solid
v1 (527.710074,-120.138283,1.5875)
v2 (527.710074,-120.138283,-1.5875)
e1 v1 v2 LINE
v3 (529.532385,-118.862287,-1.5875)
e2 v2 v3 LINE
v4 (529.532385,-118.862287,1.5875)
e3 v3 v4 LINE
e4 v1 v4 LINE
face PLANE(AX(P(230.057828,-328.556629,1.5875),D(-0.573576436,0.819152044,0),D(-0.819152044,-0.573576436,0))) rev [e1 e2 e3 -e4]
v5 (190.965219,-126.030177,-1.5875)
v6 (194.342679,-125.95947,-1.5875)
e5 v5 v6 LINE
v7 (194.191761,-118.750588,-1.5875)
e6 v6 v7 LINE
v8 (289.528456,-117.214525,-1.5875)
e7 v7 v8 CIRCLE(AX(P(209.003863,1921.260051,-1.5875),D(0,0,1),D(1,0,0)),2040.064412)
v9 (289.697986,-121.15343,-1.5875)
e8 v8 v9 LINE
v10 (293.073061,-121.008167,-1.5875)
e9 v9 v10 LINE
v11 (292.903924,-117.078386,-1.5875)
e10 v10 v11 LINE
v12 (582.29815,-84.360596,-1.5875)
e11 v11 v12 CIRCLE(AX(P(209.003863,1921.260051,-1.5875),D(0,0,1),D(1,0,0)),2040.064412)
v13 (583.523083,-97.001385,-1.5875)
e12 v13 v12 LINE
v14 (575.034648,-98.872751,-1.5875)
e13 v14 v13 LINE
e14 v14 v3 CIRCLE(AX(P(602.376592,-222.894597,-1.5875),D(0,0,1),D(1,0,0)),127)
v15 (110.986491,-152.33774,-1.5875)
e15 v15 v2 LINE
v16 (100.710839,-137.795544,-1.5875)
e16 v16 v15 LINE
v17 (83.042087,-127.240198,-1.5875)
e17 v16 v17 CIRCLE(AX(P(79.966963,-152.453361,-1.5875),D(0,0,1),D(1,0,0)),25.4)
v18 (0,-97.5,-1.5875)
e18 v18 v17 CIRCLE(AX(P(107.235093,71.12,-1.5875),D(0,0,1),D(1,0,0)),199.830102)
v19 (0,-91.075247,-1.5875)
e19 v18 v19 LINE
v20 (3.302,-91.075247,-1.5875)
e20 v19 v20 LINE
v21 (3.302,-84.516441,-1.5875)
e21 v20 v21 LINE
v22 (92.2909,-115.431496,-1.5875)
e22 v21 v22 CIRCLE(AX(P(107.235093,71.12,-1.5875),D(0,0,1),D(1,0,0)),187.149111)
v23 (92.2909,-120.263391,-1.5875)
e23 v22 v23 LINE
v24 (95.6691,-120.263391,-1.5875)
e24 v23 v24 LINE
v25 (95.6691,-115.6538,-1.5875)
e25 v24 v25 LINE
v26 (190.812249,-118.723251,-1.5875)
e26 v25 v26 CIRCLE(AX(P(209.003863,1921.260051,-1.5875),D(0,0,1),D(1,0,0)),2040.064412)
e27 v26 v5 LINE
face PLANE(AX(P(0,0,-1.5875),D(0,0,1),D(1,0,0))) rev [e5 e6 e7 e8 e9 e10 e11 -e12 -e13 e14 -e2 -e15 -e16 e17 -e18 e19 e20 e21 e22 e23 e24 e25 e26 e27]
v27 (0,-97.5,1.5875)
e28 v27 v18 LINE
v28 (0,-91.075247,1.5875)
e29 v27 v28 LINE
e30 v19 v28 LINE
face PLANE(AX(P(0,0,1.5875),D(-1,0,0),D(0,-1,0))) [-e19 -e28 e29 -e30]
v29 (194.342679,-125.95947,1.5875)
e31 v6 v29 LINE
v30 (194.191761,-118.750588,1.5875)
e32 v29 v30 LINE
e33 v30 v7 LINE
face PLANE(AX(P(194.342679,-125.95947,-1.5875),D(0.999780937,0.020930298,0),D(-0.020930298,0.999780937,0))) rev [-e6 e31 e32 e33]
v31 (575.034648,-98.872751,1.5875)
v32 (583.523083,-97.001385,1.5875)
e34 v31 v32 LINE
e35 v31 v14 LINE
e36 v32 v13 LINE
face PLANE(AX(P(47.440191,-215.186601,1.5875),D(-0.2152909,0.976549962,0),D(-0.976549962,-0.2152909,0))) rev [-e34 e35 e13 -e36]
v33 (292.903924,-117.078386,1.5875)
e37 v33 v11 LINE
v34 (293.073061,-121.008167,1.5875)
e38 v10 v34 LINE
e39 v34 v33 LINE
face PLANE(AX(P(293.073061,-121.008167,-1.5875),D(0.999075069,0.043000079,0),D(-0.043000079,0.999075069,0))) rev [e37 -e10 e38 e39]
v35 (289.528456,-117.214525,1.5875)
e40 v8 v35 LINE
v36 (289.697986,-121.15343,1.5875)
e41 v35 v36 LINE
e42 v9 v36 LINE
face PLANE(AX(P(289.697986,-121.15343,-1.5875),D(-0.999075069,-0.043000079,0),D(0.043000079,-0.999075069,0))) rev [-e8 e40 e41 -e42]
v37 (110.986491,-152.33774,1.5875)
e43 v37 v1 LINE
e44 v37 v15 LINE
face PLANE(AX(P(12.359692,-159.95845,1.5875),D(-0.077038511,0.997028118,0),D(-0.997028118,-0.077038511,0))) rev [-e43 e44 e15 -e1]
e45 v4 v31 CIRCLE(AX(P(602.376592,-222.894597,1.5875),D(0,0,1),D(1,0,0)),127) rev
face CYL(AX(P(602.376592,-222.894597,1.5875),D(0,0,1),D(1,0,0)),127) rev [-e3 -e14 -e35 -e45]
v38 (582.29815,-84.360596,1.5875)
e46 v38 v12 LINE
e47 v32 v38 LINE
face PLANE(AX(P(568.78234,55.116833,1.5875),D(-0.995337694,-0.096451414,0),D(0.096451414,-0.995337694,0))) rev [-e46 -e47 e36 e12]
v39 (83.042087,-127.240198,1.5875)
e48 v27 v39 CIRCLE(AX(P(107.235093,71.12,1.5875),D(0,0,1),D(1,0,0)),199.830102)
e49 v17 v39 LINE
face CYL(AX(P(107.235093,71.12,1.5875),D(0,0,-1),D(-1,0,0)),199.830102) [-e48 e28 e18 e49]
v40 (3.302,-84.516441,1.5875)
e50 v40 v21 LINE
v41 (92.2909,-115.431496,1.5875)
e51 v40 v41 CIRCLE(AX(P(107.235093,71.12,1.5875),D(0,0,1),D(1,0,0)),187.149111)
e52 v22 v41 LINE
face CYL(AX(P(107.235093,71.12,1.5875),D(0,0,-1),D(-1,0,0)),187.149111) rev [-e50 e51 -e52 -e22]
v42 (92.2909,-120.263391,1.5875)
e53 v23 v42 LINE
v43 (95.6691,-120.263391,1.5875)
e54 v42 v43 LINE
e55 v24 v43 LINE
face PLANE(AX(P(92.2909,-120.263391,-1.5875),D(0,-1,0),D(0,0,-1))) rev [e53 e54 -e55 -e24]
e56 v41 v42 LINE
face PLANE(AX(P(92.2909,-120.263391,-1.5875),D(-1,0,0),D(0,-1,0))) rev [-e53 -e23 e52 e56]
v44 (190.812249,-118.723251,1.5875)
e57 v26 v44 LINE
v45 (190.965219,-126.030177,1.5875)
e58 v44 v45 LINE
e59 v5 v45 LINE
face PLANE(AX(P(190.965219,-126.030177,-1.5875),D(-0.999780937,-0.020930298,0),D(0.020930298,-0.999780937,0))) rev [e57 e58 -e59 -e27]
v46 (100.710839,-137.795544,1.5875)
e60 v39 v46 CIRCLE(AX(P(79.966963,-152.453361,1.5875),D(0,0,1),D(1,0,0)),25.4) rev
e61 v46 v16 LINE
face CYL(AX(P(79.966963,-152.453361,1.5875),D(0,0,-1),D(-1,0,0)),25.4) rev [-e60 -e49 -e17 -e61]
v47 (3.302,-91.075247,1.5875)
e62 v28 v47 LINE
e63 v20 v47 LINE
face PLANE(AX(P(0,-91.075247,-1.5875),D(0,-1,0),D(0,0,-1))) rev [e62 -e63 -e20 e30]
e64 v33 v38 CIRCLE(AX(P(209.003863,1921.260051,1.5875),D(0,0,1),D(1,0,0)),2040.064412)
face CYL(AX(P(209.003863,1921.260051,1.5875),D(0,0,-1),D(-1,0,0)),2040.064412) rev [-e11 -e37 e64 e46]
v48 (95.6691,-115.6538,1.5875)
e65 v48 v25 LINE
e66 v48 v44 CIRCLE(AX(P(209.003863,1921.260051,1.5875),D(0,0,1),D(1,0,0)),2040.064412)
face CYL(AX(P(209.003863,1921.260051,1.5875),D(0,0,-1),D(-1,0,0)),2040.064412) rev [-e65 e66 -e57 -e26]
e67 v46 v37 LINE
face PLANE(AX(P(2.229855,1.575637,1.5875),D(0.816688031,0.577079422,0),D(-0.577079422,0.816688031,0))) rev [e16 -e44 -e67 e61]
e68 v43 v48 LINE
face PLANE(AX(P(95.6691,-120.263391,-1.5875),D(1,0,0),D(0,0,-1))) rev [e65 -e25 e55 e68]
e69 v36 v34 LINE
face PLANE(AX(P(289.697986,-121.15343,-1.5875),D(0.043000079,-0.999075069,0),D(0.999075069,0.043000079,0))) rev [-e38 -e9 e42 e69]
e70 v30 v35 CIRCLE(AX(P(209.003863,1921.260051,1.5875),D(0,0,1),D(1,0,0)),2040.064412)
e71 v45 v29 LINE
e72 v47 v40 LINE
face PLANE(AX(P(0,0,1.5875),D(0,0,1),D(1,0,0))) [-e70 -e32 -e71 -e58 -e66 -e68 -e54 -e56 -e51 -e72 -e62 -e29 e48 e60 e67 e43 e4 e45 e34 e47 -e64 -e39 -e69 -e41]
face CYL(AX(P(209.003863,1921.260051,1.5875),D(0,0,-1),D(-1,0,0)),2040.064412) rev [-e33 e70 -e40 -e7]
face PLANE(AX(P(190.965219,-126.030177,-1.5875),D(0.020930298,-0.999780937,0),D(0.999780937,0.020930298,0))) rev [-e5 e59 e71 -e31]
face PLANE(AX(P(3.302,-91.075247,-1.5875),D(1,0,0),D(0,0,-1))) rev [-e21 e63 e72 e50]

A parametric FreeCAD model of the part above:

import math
import FreeCAD as App
import Part
import Sketcher
from FreeCAD import Vector
Q = App.Units.Quantity


def edges_at(feature, points):
    """Names of the edges that pass closest to the given points."""
    edges = feature.Shape.Edges
    near = lambda p: min(range(len(edges)), key=lambda i: edges[i].distToShape(Part.Vertex(*p))[0])
    return sorted({f"Edge{near(p) + 1}" for p in points})

doc = App.newDocument("Part")
body = doc.addObject("PartDesign::Body", "Body")

# Sketch on XY plane
sketch1 = body.newObject("Sketcher::SketchObject", "Sketch")
sketch1.AttachmentSupport = (doc.getObject("XY_Plane"), [""])
sketch1.MapMode = "FlatFace"
sketch1.addGeometry(Part.LineSegment(Vector(0, -82.26, 0), Vector(0, -97.5, 0)), False)
sketch1.addGeometry(Part.ArcOfCircle(Part.Circle(Vector(107.235093, 71.12, 0), Vector(0, 0, 1), 199.830102), math.radians(-122.454612), math.radians(-93.803326)), False)
sketch1.addGeometry(Part.LineSegment(Vector(93.98, -128.27, 0), Vector(110.986491, -152.33774, 0)), False)
sketch1.addGeometry(Part.LineSegment(Vector(110.986491, -152.33774, 0), Vector(527.710074, -120.138283, 0)), False)
sketch1.addGeometry(Part.LineSegment(Vector(527.710074, -120.138283, 0), Vector(550.289321, -104.328124, 0)), False)
sketch1.addGeometry(Part.LineSegment(Vector(550.289321, -104.328124, 0), Vector(583.523083, -97.001385, 0)), False)
sketch1.addGeometry(Part.LineSegment(Vector(583.523083, -97.001385, 0), Vector(582.29815, -84.360596, 0)), False)
sketch1.addGeometry(Part.ArcOfCircle(Part.Circle(Vector(209.003863, 1921.260051, 0), Vector(0, 0, 1), 2040.064412), math.radians(-93.232191), math.radians(-79.456521)), False)
sketch1.addGeometry(Part.ArcOfCircle(Part.Circle(Vector(107.235093, 71.12, 0), Vector(0, 0, 1), 187.149111), math.radians(-123.547953), math.radians(-94.061453)), False)
sketch1.addGeometry(Part.ArcOfCircle(Part.Circle(Vector(107.235094, 71.120001, 0), Vector(0, 0, 1), 187.149112), math.radians(-124.959188), math.radians(-123.547953)), False)
sketch1.addConstraint(Sketcher.Constraint("Coincident", 0, 2, 1, 1))
sketch1.addConstraint(Sketcher.Constraint("Coincident", 1, 2, 2, 1))
sketch1.addConstraint(Sketcher.Constraint("Coincident", 2, 2, 3, 1))
sketch1.addConstraint(Sketcher.Constraint("Coincident", 3, 2, 4, 1))
sketch1.addConstraint(Sketcher.Constraint("Coincident", 4, 2, 5, 1))
sketch1.addConstraint(Sketcher.Constraint("Coincident", 5, 2, 6, 1))
sketch1.addConstraint(Sketcher.Constraint("Coincident", 6, 2, 7, 2))
sketch1.addConstraint(Sketcher.Constraint("Coincident", 7, 1, 8, 2))
sketch1.addConstraint(Sketcher.Constraint("Tangent", 8, 1, 9, 2))
sketch1.addConstraint(Sketcher.Constraint("Coincident", 9, 1, 0, 1))
sketch1.addConstraint(Sketcher.Constraint("Vertical", 0))
sketch1.addConstraint(Sketcher.Constraint("Coincident", 8, 3, 1, 3))
sketch1.addConstraint(Sketcher.Constraint("Equal", 8, 9))
sketch1.addConstraint(Sketcher.Constraint("PointOnObject", 0, 2, -2))
sketch1.addConstraint(Sketcher.Constraint("Vertical", 1, 2, 7, 1))
sketch1.addConstraint(Sketcher.Constraint("DistanceY", 0, 2, 0, 1, Q("0.6 in")))
sketch1.addConstraint(Sketcher.Constraint("Angle", 4, Q("35 deg")))
sketch1.addConstraint(Sketcher.Constraint("Distance", 6, Q("0.5 in")))
sketch1.addConstraint(Sketcher.Constraint("DistanceY", -1, 1, 1, 3, Q("2.8 in")))
sketch1.addConstraint(Sketcher.Constraint("DistanceX", -1, 1, 1, 2, Q("3.7 in")))
sketch1.addConstraint(Sketcher.Constraint("DistanceY", 1, 2, -1, 1, Q("5.05 in")))
sketch1.addConstraint(Sketcher.Constraint("DistanceX", -1, 1, 8, 1, Q("0.15 in")))
sketch1.addConstraint(Sketcher.Constraint("Radius", 1, 199.830102))
sketch1.addConstraint(Sketcher.Constraint("Radius", 7, 2040.064412))
sketch1.addConstraint(Sketcher.Constraint("Distance", 2, 29.469931))
sketch1.addConstraint(Sketcher.Constraint("Distance", 4, 27.564171))
sketch1.addConstraint(Sketcher.Constraint("Distance", 5, 34.031809))
sketch1.addConstraint(Sketcher.Constraint("DistanceY", -1, 1, 7, 3, 1921.260051))
sketch1.addConstraint(Sketcher.Constraint("DistanceX", -1, 1, 2, 2, 110.986491))
sketch1.addConstraint(Sketcher.Constraint("DistanceX", -1, 1, 4, 2, 550.289321))
sketch1.addConstraint(Sketcher.Constraint("DistanceX", -1, 1, 6, 2, 582.29815))
sketch1.addConstraint(Sketcher.Constraint("DistanceX", 4, 2, 5, 2, 33.233762))
pad1 = body.newObject("PartDesign::Pad", "Pad")
pad1.Profile = sketch1
pad1.Length = Q("0.125 in")
pad1.Midplane = True
doc.recompute()

fillet = body.newObject("PartDesign::Fillet", "Fillet")
fillet.Base = (pad1, edges_at(pad1, [(550.289, -104.328, 0)]))
fillet.Radius = Q("5 in")
doc.recompute()

fillet2 = body.newObject("PartDesign::Fillet", "Fillet001")
fillet2.Base = (fillet, edges_at(fillet, [(93.98, -128.27, 0)]))
fillet2.Radius = Q("1 in")

# Sketch on XY plane
sketch2 = body.newObject("Sketcher::SketchObject", "Sketch001")
sketch2.AttachmentSupport = (doc.getObject("XY_Plane"), [""])
sketch2.MapMode = "FlatFace"
sketch2.AttachmentOffset = App.Placement(Vector(0, 0, 0.0625 * 25.4), App.Rotation())
sketch2.addGeometry(Part.LineSegment(Vector(0, -78.375247, 0), Vector(0, -91.075247, 0)), False)
sketch2.addGeometry(Part.LineSegment(Vector(0, -91.075247, 0), Vector(3.302, -91.075247, 0)), False)
sketch2.addGeometry(Part.LineSegment(Vector(3.302, -91.075247, 0), Vector(3.302, -78.375247, 0)), False)
sketch2.addGeometry(Part.LineSegment(Vector(3.302, -78.375247, 0), Vector(0, -78.375247, 0)), False)
sketch2.addGeometry(Part.LineSegment(Vector(92.2909, -107.563391, 0), Vector(92.2909, -120.263391, 0)), False)
sketch2.addGeometry(Part.LineSegment(Vector(92.2909, -120.263391, 0), Vector(95.6691, -120.263391, 0)), False)
sketch2.addGeometry(Part.LineSegment(Vector(95.6691, -120.263391, 0), Vector(95.6691, -107.563391, 0)), False)
sketch2.addGeometry(Part.LineSegment(Vector(95.6691, -107.563391, 0), Vector(92.2909, -107.563391, 0)), False)
sketch2.addGeometry(Part.LineSegment(Vector(190.965219, -126.030177, 0), Vector(194.342679, -125.95947, 0)), False)
sketch2.addGeometry(Part.LineSegment(Vector(194.342679, -125.95947, 0), Vector(194.076864, -113.262252, 0)), False)
sketch2.addGeometry(Part.LineSegment(Vector(194.076864, -113.262252, 0), Vector(190.699404, -113.332959, 0)), False)
sketch2.addGeometry(Part.LineSegment(Vector(190.699404, -113.332959, 0), Vector(190.965219, -126.030177, 0)), False)
sketch2.addGeometry(Part.LineSegment(Vector(289.697986, -121.15343, 0), Vector(293.073061, -121.008167, 0)), False)
sketch2.addGeometry(Part.LineSegment(Vector(293.073061, -121.008167, 0), Vector(292.800011, -114.66404, 0)), False)
sketch2.addGeometry(Part.LineSegment(Vector(292.800011, -114.66404, 0), Vector(289.424935, -114.809303, 0)), False)
sketch2.addGeometry(Part.LineSegment(Vector(289.424935, -114.809303, 0), Vector(289.697986, -121.15343, 0)), False)
sketch2.addConstraint(Sketcher.Constraint("Coincident", 0, 2, 1, 1))
sketch2.addConstraint(Sketcher.Constraint("Coincident", 1, 2, 2, 1))
sketch2.addConstraint(Sketcher.Constraint("Coincident", 2, 2, 3, 1))
sketch2.addConstraint(Sketcher.Constraint("Coincident", 3, 2, 0, 1))
sketch2.addConstraint(Sketcher.Constraint("Coincident", 4, 2, 5, 1))
sketch2.addConstraint(Sketcher.Constraint("Coincident", 5, 2, 6, 1))
sketch2.addConstraint(Sketcher.Constraint("Coincident", 6, 2, 7, 1))
sketch2.addConstraint(Sketcher.Constraint("Coincident", 7, 2, 4, 1))
sketch2.addConstraint(Sketcher.Constraint("Coincident", 8, 2, 9, 1))
sketch2.addConstraint(Sketcher.Constraint("Coincident", 9, 2, 10, 1))
sketch2.addConstraint(Sketcher.Constraint("Coincident", 10, 2, 11, 1))
sketch2.addConstraint(Sketcher.Constraint("Coincident", 11, 2, 8, 1))
sketch2.addConstraint(Sketcher.Constraint("Coincident", 12, 2, 13, 1))
sketch2.addConstraint(Sketcher.Constraint("Coincident", 13, 2, 14, 1))
sketch2.addConstraint(Sketcher.Constraint("Coincident", 14, 2, 15, 1))
sketch2.addConstraint(Sketcher.Constraint("Coincident", 15, 2, 12, 1))
sketch2.addConstraint(Sketcher.Constraint("Vertical", 0))
sketch2.addConstraint(Sketcher.Constraint("Horizontal", 1))
sketch2.addConstraint(Sketcher.Constraint("Vertical", 2))
sketch2.addConstraint(Sketcher.Constraint("Horizontal", 3))
sketch2.addConstraint(Sketcher.Constraint("Vertical", 4))
sketch2.addConstraint(Sketcher.Constraint("Horizontal", 5))
sketch2.addConstraint(Sketcher.Constraint("Vertical", 6))
sketch2.addConstraint(Sketcher.Constraint("Horizontal", 7))
sketch2.addConstraint(Sketcher.Constraint("PointOnObject", 0, 2, -2))
sketch2.addConstraint(Sketcher.Constraint("Perpendicular", 8, 9))
sketch2.addConstraint(Sketcher.Constraint("Perpendicular", 9, 10))
sketch2.addConstraint(Sketcher.Constraint("Perpendicular", 10, 11))
sketch2.addConstraint(Sketcher.Constraint("Perpendicular", 12, 13))
sketch2.addConstraint(Sketcher.Constraint("Perpendicular", 13, 14))
sketch2.addConstraint(Sketcher.Constraint("Perpendicular", 14, 15))
sketch2.addConstraint(Sketcher.Constraint("Equal", 2, 4))
sketch2.addConstraint(Sketcher.Constraint("Equal", 10, 12))
sketch2.addConstraint(Sketcher.Constraint("DistanceY", 0, 2, 0, 1, Q("0.5 in")))
sketch2.addConstraint(Sketcher.Constraint("Distance", 9, Q("0.5 in")))
sketch2.addConstraint(Sketcher.Constraint("DistanceX", 1, 1, 1, 2, Q("0.13 in")))
sketch2.addConstraint(Sketcher.Constraint("Distance", 13, Q("0.25 in")))
sketch2.addConstraint(Sketcher.Constraint("DistanceX", 5, 1, 5, 2, Q("0.133 in")))
sketch2.addConstraint(Sketcher.Constraint("Distance", 8, Q("0.133 in")))
sketch2.addConstraint(Sketcher.Constraint("DistanceX", -1, 1, 4, 2, Q("3.6335 in")))
sketch2.addConstraint(Sketcher.Constraint("DistanceY", 4, 2, -1, 1, 120.263391))
sketch2.addConstraint(Sketcher.Constraint("DistanceX", -1, 1, 8, 2, 194.342679))
sketch2.addConstraint(Sketcher.Constraint("DistanceY", 8, 2, -1, 1, 125.95947))
sketch2.addConstraint(Sketcher.Constraint("DistanceY", 9, 2, -1, 1, 113.262252))
sketch2.addConstraint(Sketcher.Constraint("DistanceX", -1, 1, 12, 2, 293.073061))
sketch2.addConstraint(Sketcher.Constraint("DistanceX", -1, 1, 13, 2, 292.800011))
sketch2.addConstraint(Sketcher.Constraint("DistanceY", 13, 2, -1, 1, 114.66404))
sketch2.addConstraint(Sketcher.Constraint("DistanceY", 0, 2, -1, 1, 91.075247))
pocket1 = body.newObject("PartDesign::Pocket", "Pocket")
pocket1.Profile = sketch2
pocket1.Type = "ThroughAll"

doc.recompute()
